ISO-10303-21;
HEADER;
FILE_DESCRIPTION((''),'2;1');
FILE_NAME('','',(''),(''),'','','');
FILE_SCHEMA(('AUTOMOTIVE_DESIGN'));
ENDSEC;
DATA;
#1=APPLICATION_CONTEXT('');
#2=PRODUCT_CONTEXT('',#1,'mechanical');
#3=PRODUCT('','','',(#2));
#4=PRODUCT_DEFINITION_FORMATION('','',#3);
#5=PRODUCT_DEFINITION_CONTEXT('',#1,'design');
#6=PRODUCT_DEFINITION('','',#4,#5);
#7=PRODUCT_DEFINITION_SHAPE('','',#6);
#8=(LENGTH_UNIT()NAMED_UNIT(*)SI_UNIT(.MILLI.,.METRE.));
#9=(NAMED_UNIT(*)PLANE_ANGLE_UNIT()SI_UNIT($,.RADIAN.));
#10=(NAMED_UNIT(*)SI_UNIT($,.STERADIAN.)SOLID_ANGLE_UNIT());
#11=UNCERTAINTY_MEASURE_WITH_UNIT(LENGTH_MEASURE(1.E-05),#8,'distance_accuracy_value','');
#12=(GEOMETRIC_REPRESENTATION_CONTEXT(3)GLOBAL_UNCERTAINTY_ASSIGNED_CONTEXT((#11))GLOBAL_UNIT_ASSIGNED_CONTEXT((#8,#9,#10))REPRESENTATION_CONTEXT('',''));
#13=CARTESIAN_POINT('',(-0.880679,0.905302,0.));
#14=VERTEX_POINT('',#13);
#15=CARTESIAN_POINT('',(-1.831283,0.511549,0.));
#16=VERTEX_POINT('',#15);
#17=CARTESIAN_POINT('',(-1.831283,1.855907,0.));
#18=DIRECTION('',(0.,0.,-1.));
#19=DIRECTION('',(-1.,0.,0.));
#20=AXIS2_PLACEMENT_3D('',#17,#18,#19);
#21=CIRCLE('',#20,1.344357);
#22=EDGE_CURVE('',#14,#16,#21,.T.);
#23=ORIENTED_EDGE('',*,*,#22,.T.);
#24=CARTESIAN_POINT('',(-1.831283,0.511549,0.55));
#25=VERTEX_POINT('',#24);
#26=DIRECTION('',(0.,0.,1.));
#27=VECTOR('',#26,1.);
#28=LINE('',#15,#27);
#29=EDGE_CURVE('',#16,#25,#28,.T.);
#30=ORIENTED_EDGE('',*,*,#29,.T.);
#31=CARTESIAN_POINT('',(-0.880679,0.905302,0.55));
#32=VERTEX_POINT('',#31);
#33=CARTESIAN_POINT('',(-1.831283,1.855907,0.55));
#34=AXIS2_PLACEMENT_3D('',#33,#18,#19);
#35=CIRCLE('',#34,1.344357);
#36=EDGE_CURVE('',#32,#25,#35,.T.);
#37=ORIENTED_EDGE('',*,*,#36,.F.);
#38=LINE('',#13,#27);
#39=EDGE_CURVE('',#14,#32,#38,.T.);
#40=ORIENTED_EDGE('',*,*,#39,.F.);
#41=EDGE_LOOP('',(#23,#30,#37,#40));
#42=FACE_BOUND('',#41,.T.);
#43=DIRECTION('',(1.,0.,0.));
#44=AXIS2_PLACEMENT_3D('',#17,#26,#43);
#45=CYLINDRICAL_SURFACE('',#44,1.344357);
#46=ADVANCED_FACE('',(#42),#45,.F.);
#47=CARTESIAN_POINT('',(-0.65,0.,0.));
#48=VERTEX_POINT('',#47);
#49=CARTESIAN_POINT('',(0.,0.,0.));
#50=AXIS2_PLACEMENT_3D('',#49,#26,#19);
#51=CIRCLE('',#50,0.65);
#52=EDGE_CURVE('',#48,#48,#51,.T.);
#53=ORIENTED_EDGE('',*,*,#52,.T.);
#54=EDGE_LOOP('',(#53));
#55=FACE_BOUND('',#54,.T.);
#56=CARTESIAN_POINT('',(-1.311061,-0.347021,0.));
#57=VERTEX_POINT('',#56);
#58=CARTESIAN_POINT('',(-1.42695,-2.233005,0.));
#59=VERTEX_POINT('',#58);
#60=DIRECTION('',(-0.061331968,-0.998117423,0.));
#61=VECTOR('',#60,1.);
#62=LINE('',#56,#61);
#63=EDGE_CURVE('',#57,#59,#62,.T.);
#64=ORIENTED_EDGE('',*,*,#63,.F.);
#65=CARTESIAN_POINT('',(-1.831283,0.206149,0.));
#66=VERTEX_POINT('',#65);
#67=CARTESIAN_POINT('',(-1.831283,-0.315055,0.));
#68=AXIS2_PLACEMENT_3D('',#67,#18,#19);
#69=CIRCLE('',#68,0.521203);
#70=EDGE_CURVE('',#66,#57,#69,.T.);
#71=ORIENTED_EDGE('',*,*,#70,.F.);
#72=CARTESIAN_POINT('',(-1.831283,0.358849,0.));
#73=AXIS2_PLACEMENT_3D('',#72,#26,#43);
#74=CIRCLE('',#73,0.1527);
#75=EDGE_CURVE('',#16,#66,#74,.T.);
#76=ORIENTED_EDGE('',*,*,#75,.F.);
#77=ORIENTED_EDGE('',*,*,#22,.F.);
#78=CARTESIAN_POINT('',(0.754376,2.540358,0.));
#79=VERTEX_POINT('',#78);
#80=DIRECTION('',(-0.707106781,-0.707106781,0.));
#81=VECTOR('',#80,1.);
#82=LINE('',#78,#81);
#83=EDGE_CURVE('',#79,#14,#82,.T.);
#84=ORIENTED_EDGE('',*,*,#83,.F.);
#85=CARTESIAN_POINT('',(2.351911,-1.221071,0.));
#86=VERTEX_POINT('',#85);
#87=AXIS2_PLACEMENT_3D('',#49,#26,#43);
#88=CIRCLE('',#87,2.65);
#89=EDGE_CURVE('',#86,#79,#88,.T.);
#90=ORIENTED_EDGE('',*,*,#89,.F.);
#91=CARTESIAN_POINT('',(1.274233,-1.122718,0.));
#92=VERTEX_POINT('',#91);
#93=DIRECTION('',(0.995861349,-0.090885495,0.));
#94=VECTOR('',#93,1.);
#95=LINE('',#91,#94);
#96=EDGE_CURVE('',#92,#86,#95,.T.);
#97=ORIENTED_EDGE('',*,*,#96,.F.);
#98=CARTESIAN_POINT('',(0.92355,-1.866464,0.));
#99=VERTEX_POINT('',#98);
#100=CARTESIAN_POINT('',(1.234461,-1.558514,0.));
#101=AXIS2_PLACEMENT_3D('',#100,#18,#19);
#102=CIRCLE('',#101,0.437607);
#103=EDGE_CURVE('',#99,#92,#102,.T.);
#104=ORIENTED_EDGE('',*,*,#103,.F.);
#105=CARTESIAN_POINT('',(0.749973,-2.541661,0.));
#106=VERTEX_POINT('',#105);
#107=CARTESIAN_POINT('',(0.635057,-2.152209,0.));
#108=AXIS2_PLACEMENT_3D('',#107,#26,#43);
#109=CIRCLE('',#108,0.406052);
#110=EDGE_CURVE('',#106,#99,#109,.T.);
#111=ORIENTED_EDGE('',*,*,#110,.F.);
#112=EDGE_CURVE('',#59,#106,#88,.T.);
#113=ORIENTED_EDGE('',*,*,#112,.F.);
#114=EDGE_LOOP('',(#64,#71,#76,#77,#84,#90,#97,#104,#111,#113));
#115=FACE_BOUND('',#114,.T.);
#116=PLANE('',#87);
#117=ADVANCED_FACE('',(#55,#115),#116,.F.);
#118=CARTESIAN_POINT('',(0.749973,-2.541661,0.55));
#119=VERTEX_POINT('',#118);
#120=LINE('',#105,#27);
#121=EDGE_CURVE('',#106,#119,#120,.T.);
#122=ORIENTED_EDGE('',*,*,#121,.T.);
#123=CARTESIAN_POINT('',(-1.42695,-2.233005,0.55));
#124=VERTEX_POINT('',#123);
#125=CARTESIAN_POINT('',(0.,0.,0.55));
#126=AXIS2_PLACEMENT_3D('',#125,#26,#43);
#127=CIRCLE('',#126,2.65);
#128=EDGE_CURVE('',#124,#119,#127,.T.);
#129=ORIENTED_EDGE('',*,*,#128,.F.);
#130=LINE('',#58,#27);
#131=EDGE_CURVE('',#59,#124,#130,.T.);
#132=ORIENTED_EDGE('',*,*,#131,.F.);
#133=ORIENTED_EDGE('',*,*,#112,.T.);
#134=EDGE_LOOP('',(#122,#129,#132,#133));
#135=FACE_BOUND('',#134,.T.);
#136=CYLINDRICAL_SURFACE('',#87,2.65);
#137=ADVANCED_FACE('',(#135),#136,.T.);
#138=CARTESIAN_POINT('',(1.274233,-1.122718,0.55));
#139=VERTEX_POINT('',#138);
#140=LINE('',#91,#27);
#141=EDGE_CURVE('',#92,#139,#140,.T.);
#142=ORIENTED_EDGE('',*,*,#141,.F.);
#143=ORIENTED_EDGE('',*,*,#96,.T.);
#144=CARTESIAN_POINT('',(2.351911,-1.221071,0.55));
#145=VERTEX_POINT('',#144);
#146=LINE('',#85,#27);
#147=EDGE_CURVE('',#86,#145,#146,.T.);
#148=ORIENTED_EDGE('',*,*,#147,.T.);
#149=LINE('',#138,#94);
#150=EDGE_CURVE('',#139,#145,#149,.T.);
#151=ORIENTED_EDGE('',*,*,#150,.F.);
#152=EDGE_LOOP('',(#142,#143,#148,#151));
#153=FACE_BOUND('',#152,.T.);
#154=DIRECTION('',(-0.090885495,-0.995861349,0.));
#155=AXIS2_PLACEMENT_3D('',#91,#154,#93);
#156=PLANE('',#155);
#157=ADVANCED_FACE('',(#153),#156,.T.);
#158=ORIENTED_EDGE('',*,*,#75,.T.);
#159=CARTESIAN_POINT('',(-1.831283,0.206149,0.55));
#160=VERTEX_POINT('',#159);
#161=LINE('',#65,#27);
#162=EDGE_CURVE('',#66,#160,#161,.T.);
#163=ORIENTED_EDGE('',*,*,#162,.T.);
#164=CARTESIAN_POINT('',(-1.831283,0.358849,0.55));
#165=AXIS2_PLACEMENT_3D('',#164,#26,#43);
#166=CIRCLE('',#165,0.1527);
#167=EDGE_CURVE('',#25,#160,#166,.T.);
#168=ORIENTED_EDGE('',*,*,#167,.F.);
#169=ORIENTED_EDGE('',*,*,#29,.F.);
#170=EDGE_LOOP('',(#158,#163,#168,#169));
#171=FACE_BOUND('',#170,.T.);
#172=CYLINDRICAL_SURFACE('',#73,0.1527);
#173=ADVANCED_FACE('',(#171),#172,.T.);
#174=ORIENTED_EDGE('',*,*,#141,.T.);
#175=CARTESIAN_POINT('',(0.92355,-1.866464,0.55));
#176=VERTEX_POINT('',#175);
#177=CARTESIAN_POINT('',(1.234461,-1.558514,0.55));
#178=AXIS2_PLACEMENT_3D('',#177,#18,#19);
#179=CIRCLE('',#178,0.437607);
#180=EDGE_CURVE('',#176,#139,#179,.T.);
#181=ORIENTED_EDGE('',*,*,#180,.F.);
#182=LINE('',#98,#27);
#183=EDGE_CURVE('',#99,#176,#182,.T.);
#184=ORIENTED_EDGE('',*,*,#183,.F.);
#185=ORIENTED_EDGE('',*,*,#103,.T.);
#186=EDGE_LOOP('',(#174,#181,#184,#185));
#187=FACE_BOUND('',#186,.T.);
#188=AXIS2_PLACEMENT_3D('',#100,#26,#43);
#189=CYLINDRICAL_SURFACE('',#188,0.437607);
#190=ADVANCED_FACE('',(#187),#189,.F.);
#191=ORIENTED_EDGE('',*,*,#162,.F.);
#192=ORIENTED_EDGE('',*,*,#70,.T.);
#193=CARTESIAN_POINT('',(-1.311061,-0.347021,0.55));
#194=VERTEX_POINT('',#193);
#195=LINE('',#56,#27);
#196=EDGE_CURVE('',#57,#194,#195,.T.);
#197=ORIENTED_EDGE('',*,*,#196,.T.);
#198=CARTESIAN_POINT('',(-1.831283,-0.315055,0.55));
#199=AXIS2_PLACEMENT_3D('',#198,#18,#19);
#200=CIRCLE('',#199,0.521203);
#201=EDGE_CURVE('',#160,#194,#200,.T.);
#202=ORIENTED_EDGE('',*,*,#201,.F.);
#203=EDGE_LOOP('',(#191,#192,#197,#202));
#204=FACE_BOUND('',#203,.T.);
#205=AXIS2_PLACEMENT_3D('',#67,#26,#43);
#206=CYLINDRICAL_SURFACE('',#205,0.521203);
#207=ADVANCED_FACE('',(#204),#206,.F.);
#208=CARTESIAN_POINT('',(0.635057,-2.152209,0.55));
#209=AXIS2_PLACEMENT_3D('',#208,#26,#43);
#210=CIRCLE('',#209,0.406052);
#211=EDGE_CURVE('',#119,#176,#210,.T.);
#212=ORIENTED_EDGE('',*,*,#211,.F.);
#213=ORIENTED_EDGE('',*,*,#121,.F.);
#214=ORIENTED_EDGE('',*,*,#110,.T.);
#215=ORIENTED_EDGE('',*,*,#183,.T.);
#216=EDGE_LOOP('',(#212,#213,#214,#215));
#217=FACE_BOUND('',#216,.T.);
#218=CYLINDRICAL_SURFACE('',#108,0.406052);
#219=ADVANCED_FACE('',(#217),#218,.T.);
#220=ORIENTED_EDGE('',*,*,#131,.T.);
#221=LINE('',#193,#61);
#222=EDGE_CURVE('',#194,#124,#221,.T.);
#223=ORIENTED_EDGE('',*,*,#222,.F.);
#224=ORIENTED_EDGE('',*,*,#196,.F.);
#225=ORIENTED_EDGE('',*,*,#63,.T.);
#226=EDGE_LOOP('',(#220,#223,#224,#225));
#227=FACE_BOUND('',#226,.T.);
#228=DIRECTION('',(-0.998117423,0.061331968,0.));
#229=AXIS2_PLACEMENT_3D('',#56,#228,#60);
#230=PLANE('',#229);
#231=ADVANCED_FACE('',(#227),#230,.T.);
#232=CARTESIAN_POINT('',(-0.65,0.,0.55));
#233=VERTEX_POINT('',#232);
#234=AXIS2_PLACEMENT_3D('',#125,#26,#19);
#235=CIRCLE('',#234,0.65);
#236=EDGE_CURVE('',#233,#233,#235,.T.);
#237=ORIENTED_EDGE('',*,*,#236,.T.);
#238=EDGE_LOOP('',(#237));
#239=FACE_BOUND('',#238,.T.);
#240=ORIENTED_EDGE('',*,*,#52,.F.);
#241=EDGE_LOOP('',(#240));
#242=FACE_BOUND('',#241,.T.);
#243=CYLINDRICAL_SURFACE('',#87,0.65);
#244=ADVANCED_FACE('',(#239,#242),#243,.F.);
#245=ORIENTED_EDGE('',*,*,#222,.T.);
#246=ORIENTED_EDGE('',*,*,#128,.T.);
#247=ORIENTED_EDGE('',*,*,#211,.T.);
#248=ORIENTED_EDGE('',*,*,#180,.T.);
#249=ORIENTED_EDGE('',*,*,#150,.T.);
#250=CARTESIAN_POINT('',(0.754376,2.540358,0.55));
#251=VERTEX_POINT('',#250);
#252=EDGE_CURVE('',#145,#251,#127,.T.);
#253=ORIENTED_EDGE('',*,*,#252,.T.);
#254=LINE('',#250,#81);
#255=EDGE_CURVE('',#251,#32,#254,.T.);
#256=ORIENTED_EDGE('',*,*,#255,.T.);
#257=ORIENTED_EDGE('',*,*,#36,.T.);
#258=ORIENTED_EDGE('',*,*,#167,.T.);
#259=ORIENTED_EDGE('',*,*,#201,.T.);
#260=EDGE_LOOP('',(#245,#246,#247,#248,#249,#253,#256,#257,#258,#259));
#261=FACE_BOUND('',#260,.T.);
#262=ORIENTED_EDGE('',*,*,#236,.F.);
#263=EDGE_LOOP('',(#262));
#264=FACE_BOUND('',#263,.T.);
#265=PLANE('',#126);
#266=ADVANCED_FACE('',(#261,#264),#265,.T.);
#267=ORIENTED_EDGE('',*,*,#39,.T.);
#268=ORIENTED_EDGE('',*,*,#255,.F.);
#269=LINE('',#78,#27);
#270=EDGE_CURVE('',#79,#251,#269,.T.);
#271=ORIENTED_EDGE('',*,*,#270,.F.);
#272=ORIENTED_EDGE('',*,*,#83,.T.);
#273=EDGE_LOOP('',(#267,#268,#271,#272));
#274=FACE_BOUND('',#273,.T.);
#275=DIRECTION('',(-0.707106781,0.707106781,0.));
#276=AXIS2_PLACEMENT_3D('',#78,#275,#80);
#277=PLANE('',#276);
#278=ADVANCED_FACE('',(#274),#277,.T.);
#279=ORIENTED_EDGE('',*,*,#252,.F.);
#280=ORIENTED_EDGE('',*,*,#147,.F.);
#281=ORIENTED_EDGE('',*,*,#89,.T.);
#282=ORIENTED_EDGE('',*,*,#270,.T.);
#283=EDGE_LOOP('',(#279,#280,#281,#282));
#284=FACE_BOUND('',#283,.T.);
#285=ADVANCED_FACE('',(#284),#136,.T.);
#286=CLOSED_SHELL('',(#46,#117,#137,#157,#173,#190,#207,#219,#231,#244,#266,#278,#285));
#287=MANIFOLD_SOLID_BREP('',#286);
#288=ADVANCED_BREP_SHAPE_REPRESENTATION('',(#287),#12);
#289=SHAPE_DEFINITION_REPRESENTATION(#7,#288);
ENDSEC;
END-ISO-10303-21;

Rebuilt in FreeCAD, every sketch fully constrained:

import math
import FreeCAD as App
import Part
import Sketcher
Q = App.Units.Quantity

doc = App.newDocument("Part")
body = doc.addObject("PartDesign::Body", "Body")

# Sketch on XY plane
sketch1 = doc.addObject("Sketcher::SketchObject", "Sketch")
body.addObject(sketch1)
sketch1.AttachmentSupport = (doc.XY_Plane, [""])
sketch1.MapMode = "FlatFace"
sketch1.AttachmentOffset = App.Placement(App.Vector(0, 0, 0.55), App.Rotation())
sketch1.addGeometry(Part.LineSegment(App.Vector(1.274233, -1.122718, 0), App.Vector(2.351911, -1.221071, 0)), False)
sketch1.addGeometry(Part.ArcOfCircle(Part.Circle(App.Vector(0, 0, 0), App.Vector(0, 0, 1), 2.65), math.radians(-27.437541), math.radians(73.460858)), False)
sketch1.addGeometry(Part.LineSegment(App.Vector(0.754376, 2.540358, 0), App.Vector(-0.880679, 0.905302, 0)), False)
sketch1.addGeometry(Part.ArcOfCircle(Part.Circle(App.Vector(-1.831283, 1.855907, 0), App.Vector(0, 0, 1), 1.344357), math.radians(-90), math.radians(-45)), False)
sketch1.addGeometry(Part.ArcOfCircle(Part.Circle(App.Vector(-1.831283, 0.358849, 0), App.Vector(0, 0, 1), 0.1527), math.radians(90), math.radians(270)), False)
sketch1.addGeometry(Part.ArcOfCircle(Part.Circle(App.Vector(-1.831283, -0.315055, 0), App.Vector(0, 0, 1), 0.521203), math.radians(-3.51627), math.radians(90)), False)
sketch1.addGeometry(Part.LineSegment(App.Vector(-1.311061, -0.347021, 0), App.Vector(-1.42695, -2.233005, 0)), False)
sketch1.addGeometry(Part.ArcOfCircle(Part.Circle(App.Vector(0, 0, 0), App.Vector(0, 0, 1), 2.65), math.radians(-122.579669), math.radians(-73.56014)), False)
sketch1.addGeometry(Part.ArcOfCircle(Part.Circle(App.Vector(0.635057, -2.152209, 0), App.Vector(0, 0, 1), 0.406052), math.radians(-73.56014), math.radians(44.72587)), False)
sketch1.addGeometry(Part.ArcOfCircle(Part.Circle(App.Vector(1.234461, -1.558514, 0), App.Vector(0, 0, 1), 0.437607), math.radians(84.785449), math.radians(224.72587)), False)
sketch1.addGeometry(Part.Circle(App.Vector(0, 0, 0), App.Vector(0, 0, 1), 0.65), False)
sketch1.addConstraint(Sketcher.Constraint("Coincident", 0, 2, 1, 1))
sketch1.addConstraint(Sketcher.Constraint("Coincident", 1, 2, 2, 1))
sketch1.addConstraint(Sketcher.Constraint("Tangent", 2, 2, 3, 2))
sketch1.addConstraint(Sketcher.Constraint("Tangent", 3, 1, 4, 1))
sketch1.addConstraint(Sketcher.Constraint("Tangent", 4, 2, 5, 2))
sketch1.addConstraint(Sketcher.Constraint("Tangent", 5, 1, 6, 1))
sketch1.addConstraint(Sketcher.Constraint("Coincident", 6, 2, 7, 1))
sketch1.addConstraint(Sketcher.Constraint("Tangent", 7, 2, 8, 1))
sketch1.addConstraint(Sketcher.Constraint("Tangent", 8, 2, 9, 2))
sketch1.addConstraint(Sketcher.Constraint("Tangent", 9, 1, 0, 1))
sketch1.addConstraint(Sketcher.Constraint("Coincident", 1, 3, -1, 1))
sketch1.addConstraint(Sketcher.Constraint("Coincident", 7, 3, -1, 1))
sketch1.addConstraint(Sketcher.Constraint("Coincident", 10, 3, -1, 1))
sketch1.addConstraint(Sketcher.Constraint("Equal", 1, 7))
sketch1.addConstraint(Sketcher.Constraint("Vertical", 3, 3, 4, 3))
sketch1.addConstraint(Sketcher.Constraint("Vertical", 4, 3, 5, 3))
sketch1.addConstraint(Sketcher.Constraint("Diameter", 10, 1.3))
sketch1.addConstraint(Sketcher.Constraint("Angle", 2, Q("-135 deg")))
sketch1.addConstraint(Sketcher.Constraint("Radius", 1, 2.65))
sketch1.addConstraint(Sketcher.Constraint("Radius", 4, 0.1527))
sketch1.addConstraint(Sketcher.Constraint("Radius", 8, 0.406052))
sketch1.addConstraint(Sketcher.Constraint("Radius", 3, 1.344357))
sketch1.addConstraint(Sketcher.Constraint("Radius", 5, 0.521203))
sketch1.addConstraint(Sketcher.Constraint("Radius", 9, 0.437607))
sketch1.addConstraint(Sketcher.Constraint("Distance", 6, 1.889541))
sketch1.addConstraint(Sketcher.Constraint("DistanceY", -1, 1, 4, 3, 0.358849))
sketch1.addConstraint(Sketcher.Constraint("DistanceY", 8, 3, -1, 1, 2.152209))
sketch1.addConstraint(Sketcher.Constraint("DistanceX", -1, 1, 9, 3, 1.234461))
sketch1.addConstraint(Sketcher.Constraint("DistanceX", -1, 1, 0, 2, 2.351911))
sketch1.addConstraint(Sketcher.Constraint("DistanceX", 2, 2, -1, 1, 0.880679))
pad1 = doc.addObject("PartDesign::Pad", "Pad")
body.addObject(pad1)
pad1.Profile = sketch1
pad1.Length = 0.55
pad1.Reversed = True

doc.recompute()
